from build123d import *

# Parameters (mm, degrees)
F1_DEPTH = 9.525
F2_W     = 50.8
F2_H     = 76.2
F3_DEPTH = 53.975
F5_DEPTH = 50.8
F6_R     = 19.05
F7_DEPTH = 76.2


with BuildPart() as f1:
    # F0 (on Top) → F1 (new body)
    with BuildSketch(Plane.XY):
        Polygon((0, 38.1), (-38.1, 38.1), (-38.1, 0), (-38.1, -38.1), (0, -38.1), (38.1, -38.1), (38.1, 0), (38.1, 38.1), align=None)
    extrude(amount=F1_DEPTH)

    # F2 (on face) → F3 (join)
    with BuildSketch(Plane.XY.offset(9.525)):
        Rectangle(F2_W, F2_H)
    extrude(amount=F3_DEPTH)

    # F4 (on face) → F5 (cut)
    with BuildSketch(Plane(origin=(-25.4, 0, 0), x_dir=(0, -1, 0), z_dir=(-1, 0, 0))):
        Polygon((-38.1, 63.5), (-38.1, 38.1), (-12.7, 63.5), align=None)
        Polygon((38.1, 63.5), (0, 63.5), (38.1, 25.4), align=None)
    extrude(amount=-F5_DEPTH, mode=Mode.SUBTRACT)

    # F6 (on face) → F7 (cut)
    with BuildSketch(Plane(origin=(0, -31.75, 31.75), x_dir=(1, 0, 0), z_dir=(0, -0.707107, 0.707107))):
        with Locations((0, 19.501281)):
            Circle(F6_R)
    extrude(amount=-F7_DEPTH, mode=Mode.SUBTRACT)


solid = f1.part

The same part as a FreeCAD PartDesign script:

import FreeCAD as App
import Part
import Sketcher
from FreeCAD import Vector
Q = App.Units.Quantity


def add_polygon(sketch, points):
    """Adds a closed chain of lines whose ends are joined by coincident constraints."""
    first, n = sketch.GeometryCount, len(points)
    for a, b in zip(points, points[1:] + points[:1]):
        sketch.addGeometry(Part.LineSegment(App.Vector(*a, 0), App.Vector(*b, 0)), False)
    for i in range(n):
        sketch.addConstraint(Sketcher.Constraint("Coincident", first + i, 2, first + (i + 1) % n, 1))

doc = App.newDocument("Part")
body = doc.addObject("PartDesign::Body", "Body")

# Sketch on XY plane
sketch1 = body.newObject("Sketcher::SketchObject", "Sketch")
sketch1.AttachmentSupport = (doc.getObject("XY_Plane"), [""])
sketch1.MapMode = "FlatFace"
add_polygon(sketch1, [(-38, 38), (-38, -38), (38, -38), (38, 38)])  # lines 0-3
sketch1.addConstraint(Sketcher.Constraint("Vertical", 0))
sketch1.addConstraint(Sketcher.Constraint("Horizontal", 1))
sketch1.addConstraint(Sketcher.Constraint("Vertical", 2))
sketch1.addConstraint(Sketcher.Constraint("Horizontal", 3))
sketch1.addConstraint(Sketcher.Constraint("Symmetric", 0, 2, 2, 2, -1, 1))
sketch1.addConstraint(Sketcher.Constraint("Equal", 3, 0))
sketch1.addConstraint(Sketcher.Constraint("DistanceX", 1, 1, 1, 2, Q("3 in")))
pad1 = body.newObject("PartDesign::Pad", "Pad")
pad1.Profile = sketch1
pad1.Length = Q("0.375 in")

# Sketch on XY plane
sketch2 = body.newObject("Sketcher::SketchObject", "Sketch001")
sketch2.AttachmentSupport = (doc.getObject("XY_Plane"), [""])
sketch2.MapMode = "FlatFace"
sketch2.AttachmentOffset = App.Placement(Vector(0, 0, 0.375 * 25.4), App.Rotation())
add_polygon(sketch2, [(-25, 38), (-25, -38), (25, -38), (25, 38)])  # lines 0-3
sketch2.addConstraint(Sketcher.Constraint("Vertical", 0))
sketch2.addConstraint(Sketcher.Constraint("Horizontal", 1))
sketch2.addConstraint(Sketcher.Constraint("Vertical", 2))
sketch2.addConstraint(Sketcher.Constraint("Horizontal", 3))
sketch2.addConstraint(Sketcher.Constraint("Symmetric", 0, 2, 2, 2, -1, 1))
sketch2.addConstraint(Sketcher.Constraint("DistanceX", 1, 1, 1, 2, Q("2 in")))
sketch2.addConstraint(Sketcher.Constraint("DistanceY", 0, 2, 0, 1, Q("3 in")))
pad2 = body.newObject("PartDesign::Pad", "Pad001")
pad2.Profile = sketch2
pad2.Length = Q("2.125 in")

# Sketch on YZ plane
sketch3 = body.newObject("Sketcher::SketchObject", "Sketch002")
sketch3.AttachmentSupport = (doc.getObject("YZ_Plane"), [""])
sketch3.MapMode = "FlatFace"
sketch3.AttachmentOffset = App.Placement(Vector(0, 0, -1 * 25.4), App.Rotation())
add_polygon(sketch3, [(38, 64), (38, 38), (13, 64)])  # lines 0-2
add_polygon(sketch3, [(-38, 64), (0, 64), (-38, 25)])  # lines 3-5
sketch3.addConstraint(Sketcher.Constraint("Vertical", 0))
sketch3.addConstraint(Sketcher.Constraint("Horizontal", 2))
sketch3.addConstraint(Sketcher.Constraint("Horizontal", 3))
sketch3.addConstraint(Sketcher.Constraint("Vertical", 5))
sketch3.addConstraint(Sketcher.Constraint("Symmetric", 2, 2, 5, 2, -2))
sketch3.addConstraint(Sketcher.Constraint("PointOnObject", 3, 2, -2))
sketch3.addConstraint(Sketcher.Constraint("Perpendicular", 1, 4))
sketch3.addConstraint(Sketcher.Constraint("Equal", 2, 0))
sketch3.addConstraint(Sketcher.Constraint("DistanceX", 2, 1, 2, 2, Q("1 in")))
sketch3.addConstraint(Sketcher.Constraint("DistanceX", 3, 1, 3, 2, Q("1.5 in")))
sketch3.addConstraint(Sketcher.Constraint("DistanceY", -1, 1, 4, 2, Q("1 in")))
pocket1 = body.newObject("PartDesign::Pocket", "Pocket")
pocket1.Profile = sketch3
pocket1.Length = Q("2 in")
pocket1.Reversed = True

# Sketch on an angled plane
sketch4 = body.newObject("Sketcher::SketchObject", "Sketch003")
sketch4.Placement = App.Placement(Vector(0, -31.75, 31.75), App.Rotation(Vector(1, 0, 0), Vector(0, 0.707106781, 0.707106781), Vector(0, -0.707106781, 0.707106781), "ZXY"))
sketch4.addGeometry(Part.Circle(Vector(0, 20, 0), Vector(0, 0, 1), 19), False)
sketch4.addConstraint(Sketcher.Constraint("PointOnObject", 0, 3, -2))
sketch4.addConstraint(Sketcher.Constraint("Diameter", 0, Q("1.5 in")))
sketch4.addConstraint(Sketcher.Constraint("DistanceY", -1, 1, 0, 3, 19.501281))
pocket2 = body.newObject("PartDesign::Pocket", "Pocket001")
pocket2.Profile = sketch4
pocket2.Length = Q("3 in")

doc.recompute()
